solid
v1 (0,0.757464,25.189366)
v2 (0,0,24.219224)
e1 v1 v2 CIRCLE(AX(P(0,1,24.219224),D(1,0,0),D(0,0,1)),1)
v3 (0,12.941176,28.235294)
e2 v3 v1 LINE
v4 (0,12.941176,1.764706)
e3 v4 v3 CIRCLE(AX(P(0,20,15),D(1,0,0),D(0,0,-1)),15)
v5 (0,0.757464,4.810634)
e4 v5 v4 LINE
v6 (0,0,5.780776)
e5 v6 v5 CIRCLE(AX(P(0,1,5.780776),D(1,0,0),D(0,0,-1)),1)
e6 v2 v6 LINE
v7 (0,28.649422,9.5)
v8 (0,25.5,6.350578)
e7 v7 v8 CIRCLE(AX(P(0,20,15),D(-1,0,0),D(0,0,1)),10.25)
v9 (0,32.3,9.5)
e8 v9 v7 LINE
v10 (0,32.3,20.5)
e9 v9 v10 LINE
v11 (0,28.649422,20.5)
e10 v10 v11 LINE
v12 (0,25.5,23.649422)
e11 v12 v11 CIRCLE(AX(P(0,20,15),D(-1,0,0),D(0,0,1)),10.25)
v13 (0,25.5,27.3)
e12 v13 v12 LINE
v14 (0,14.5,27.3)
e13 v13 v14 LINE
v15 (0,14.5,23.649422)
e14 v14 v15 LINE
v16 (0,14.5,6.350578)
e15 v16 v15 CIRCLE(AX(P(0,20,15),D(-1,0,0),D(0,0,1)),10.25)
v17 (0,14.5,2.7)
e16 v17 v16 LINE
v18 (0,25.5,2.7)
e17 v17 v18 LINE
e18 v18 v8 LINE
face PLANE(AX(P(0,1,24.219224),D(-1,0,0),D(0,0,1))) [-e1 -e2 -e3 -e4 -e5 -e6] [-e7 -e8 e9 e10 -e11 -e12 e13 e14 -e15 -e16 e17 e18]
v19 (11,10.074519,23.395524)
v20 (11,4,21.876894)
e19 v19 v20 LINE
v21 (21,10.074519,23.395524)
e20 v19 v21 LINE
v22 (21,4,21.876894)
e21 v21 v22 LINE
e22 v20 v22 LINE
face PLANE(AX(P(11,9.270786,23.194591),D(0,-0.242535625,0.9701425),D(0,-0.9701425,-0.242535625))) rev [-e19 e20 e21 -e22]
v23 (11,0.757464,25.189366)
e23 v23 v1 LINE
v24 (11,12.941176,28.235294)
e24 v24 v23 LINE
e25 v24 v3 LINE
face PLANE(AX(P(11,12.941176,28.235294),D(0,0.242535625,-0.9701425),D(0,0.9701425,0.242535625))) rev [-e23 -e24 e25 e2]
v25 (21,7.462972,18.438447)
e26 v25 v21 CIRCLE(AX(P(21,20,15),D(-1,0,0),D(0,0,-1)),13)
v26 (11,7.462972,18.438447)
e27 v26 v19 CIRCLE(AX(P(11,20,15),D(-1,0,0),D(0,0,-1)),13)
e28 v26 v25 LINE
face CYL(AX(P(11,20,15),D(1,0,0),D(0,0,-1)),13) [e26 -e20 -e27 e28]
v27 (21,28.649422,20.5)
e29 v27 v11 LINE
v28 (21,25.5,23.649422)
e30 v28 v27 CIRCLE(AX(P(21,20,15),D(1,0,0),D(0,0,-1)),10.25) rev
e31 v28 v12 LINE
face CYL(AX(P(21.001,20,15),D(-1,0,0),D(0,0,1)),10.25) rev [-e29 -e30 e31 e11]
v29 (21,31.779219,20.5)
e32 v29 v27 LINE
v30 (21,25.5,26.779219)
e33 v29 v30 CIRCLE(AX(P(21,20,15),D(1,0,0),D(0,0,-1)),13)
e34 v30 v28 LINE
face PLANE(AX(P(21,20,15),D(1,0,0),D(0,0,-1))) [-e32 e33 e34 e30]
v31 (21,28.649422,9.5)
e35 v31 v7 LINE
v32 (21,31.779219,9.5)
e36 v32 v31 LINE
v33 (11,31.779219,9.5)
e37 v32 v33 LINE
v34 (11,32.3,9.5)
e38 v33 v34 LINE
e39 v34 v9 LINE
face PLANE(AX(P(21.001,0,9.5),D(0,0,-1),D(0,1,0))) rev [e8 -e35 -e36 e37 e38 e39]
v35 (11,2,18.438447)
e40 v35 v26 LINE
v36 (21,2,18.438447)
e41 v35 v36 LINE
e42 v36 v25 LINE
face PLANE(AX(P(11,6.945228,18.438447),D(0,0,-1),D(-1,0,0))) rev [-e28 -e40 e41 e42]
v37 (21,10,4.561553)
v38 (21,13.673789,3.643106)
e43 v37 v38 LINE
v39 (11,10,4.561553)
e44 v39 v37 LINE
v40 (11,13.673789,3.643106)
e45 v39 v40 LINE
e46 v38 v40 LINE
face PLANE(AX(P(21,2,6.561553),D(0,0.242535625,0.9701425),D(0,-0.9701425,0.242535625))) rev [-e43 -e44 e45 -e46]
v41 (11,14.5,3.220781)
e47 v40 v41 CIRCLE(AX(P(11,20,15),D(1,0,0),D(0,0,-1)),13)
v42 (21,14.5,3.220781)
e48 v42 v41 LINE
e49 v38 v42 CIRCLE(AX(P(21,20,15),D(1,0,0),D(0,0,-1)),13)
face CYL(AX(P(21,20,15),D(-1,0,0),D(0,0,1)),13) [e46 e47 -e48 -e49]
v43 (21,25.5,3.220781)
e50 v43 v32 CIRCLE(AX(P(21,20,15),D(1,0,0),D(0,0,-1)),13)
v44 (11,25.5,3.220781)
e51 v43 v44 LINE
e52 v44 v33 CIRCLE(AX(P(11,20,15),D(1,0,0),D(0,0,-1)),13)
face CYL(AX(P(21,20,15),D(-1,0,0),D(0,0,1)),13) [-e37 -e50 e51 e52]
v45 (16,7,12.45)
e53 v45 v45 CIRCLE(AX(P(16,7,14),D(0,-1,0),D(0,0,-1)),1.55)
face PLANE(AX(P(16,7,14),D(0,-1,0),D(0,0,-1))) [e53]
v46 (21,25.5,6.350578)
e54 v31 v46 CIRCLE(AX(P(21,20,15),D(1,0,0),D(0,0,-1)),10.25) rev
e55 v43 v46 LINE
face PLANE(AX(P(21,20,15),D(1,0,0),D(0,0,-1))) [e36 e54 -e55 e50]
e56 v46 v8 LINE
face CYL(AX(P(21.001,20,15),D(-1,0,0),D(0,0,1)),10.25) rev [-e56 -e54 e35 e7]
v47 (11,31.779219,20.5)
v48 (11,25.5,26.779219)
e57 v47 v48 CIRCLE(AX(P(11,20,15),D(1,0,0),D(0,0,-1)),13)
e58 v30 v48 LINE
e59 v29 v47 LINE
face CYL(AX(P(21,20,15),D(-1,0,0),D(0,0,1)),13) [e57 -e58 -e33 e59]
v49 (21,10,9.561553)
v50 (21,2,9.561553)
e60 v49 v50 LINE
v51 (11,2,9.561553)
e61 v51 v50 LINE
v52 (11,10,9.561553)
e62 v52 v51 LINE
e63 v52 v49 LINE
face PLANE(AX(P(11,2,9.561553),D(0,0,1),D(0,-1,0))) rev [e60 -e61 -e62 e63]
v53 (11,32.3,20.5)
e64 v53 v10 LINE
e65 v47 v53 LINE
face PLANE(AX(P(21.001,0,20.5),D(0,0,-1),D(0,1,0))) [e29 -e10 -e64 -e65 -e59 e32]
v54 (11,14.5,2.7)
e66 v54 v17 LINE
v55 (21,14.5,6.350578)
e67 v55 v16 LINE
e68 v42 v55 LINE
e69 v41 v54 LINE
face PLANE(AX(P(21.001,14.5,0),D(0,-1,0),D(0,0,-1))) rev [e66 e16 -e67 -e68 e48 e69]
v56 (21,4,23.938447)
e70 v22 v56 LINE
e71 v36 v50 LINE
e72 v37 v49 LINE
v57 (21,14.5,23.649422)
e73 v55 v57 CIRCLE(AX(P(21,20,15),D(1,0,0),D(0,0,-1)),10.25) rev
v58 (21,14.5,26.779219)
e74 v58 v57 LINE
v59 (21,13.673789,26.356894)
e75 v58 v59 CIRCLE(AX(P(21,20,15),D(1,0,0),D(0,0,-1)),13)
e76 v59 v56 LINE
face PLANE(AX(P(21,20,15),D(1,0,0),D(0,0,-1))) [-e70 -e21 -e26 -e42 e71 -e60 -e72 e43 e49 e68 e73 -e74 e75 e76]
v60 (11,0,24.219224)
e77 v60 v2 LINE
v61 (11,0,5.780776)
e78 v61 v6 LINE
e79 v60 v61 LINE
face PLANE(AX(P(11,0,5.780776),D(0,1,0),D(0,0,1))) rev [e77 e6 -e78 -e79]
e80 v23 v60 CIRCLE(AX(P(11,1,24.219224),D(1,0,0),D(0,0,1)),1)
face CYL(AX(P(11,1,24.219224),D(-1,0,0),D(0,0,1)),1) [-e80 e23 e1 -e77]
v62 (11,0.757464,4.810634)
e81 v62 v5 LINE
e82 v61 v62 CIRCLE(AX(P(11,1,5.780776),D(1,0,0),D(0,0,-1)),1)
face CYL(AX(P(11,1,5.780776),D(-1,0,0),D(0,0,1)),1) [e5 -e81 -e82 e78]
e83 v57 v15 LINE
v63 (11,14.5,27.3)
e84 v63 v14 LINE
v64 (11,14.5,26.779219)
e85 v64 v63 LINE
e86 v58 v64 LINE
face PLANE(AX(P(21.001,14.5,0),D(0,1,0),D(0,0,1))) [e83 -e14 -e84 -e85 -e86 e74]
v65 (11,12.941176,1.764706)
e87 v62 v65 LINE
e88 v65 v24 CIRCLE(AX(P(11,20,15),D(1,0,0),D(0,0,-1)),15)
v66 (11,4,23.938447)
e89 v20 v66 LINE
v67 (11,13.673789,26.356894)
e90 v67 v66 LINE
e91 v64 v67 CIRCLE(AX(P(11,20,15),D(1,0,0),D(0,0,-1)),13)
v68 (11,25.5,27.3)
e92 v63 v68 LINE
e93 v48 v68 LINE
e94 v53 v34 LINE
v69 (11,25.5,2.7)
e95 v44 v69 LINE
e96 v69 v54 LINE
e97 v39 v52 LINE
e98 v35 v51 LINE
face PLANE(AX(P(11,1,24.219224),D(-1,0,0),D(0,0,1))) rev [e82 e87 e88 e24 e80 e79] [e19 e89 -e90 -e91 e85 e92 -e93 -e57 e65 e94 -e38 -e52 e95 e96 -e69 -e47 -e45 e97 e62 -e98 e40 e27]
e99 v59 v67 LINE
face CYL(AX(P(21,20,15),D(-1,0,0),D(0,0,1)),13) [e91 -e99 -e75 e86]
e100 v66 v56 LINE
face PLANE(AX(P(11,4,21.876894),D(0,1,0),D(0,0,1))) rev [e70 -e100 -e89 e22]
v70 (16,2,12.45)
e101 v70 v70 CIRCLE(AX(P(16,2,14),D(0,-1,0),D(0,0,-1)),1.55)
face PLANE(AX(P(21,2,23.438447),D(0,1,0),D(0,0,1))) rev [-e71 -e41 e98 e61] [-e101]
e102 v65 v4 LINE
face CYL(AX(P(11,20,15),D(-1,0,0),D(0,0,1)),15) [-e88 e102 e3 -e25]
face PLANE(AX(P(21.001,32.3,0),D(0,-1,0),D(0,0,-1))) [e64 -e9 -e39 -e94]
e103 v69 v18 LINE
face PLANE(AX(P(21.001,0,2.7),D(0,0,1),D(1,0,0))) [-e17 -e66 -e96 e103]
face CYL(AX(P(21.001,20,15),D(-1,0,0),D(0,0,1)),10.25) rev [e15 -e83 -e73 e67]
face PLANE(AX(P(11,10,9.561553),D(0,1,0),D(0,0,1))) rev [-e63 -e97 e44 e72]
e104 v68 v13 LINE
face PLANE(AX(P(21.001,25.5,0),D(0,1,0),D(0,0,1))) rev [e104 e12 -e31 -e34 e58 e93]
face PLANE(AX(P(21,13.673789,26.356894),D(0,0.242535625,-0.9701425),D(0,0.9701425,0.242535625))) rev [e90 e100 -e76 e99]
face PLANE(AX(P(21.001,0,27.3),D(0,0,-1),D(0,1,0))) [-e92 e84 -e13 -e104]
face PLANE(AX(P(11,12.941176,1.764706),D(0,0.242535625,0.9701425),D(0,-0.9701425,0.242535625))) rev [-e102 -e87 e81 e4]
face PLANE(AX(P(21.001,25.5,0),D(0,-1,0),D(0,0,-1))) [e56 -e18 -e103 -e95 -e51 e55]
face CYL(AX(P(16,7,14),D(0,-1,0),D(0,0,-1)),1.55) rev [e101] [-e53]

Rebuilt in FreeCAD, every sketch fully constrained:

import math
import FreeCAD as App
import Part
import Sketcher
Q = App.Units.Quantity


def add_polygon(sketch, points):
    """Adds a closed chain of lines whose ends are joined by coincident constraints."""
    first, n = sketch.GeometryCount, len(points)
    for a, b in zip(points, points[1:] + points[:1]):
        sketch.addGeometry(Part.LineSegment(App.Vector(*a, 0), App.Vector(*b, 0)), False)
    for i in range(n):
        sketch.addConstraint(Sketcher.Constraint("Coincident", first + i, 2, first + (i + 1) % n, 1))

doc = App.newDocument("Part")
body = doc.addObject("PartDesign::Body", "Body")

sketch1 = body.newObject("Sketcher::SketchObject", "Sketch")
sketch1.AttachmentSupport = (doc.getObject("YZ_Plane"), [""])
sketch1.MapMode = "FlatFace"
sketch1.addGeometry(Part.LineSegment(App.Vector(0, 24.2, 0), App.Vector(0, 5.8, 0)), False)
sketch1.addGeometry(Part.ArcOfCircle(Part.Circle(App.Vector(1, 5.8, 0), App.Vector(0, 0, 1), 1), math.radians(-180), math.radians(-104)), False)
sketch1.addGeometry(Part.LineSegment(App.Vector(0.8, 4.8, 0), App.Vector(12.9, 1.8, 0)), False)
sketch1.addGeometry(Part.ArcOfCircle(Part.Circle(App.Vector(20, 15, 0), App.Vector(0, 0, 1), 15), math.radians(-118), math.radians(118)), False)
sketch1.addGeometry(Part.LineSegment(App.Vector(12.9, 28.2, 0), App.Vector(0.8, 25.2, 0)), False)
sketch1.addGeometry(Part.ArcOfCircle(Part.Circle(App.Vector(1, 24.2, 0), App.Vector(0, 0, 1), 1), math.radians(104), math.radians(180)), False)
sketch1.addGeometry(Part.Circle(App.Vector(20, 15, 0), App.Vector(0, 0, 1), 10), False)
sketch1.addConstraint(Sketcher.Constraint("Tangent", 0, 2, 1, 1))
sketch1.addConstraint(Sketcher.Constraint("Tangent", 1, 2, 2, 1))
sketch1.addConstraint(Sketcher.Constraint("Coincident", 2, 2, 3, 1))
sketch1.addConstraint(Sketcher.Constraint("Coincident", 3, 2, 4, 1))
sketch1.addConstraint(Sketcher.Constraint("Tangent", 4, 2, 5, 1))
sketch1.addConstraint(Sketcher.Constraint("Tangent", 5, 2, 0, 1))
sketch1.addConstraint(Sketcher.Constraint("Vertical", 0))
sketch1.addConstraint(Sketcher.Constraint("Coincident", 6, 3, 3, 3))
sketch1.addConstraint(Sketcher.Constraint("Equal", 1, 5))
sketch1.addConstraint(Sketcher.Constraint("PointOnObject", 0, 2, -2))
sketch1.addConstraint(Sketcher.Constraint("Vertical", 2, 2, 3, 2))
sketch1.addConstraint(Sketcher.Constraint("Vertical", 1, 2, 4, 2))
sketch1.addConstraint(Sketcher.Constraint("Diameter", 6, Q("20 mm")))
sketch1.addConstraint(Sketcher.Constraint("Radius", 1, Q("1 mm")))
sketch1.addConstraint(Sketcher.Constraint("Radius", 3, Q("15 mm")))
sketch1.addConstraint(Sketcher.Constraint("DistanceX", -1, 1, 3, 3, Q("20 mm")))
sketch1.addConstraint(Sketcher.Constraint("DistanceY", -1, 1, 3, 3, Q("15 mm")))
sketch1.addConstraint(Sketcher.Constraint("DistanceY", 0, 2, 0, 1, Q("18.438447 mm")))
sketch1.addConstraint(Sketcher.Constraint("DistanceY", 2, 2, 1, 2, Q("3.045928 mm")))
pad1 = body.newObject("PartDesign::Pad", "Pad")
pad1.Profile = sketch1
pad1.Length = 11

sketch2 = body.newObject("Sketcher::SketchObject", "Sketch001")
sketch2.AttachmentSupport = (doc.getObject("YZ_Plane"), [""])
sketch2.MapMode = "FlatFace"
sketch2.AttachmentOffset = App.Placement(App.Vector(0, 0, 11), App.Rotation())
sketch2.addGeometry(Part.LineSegment(App.Vector(2, 23, 0), App.Vector(2, 7, 0)), False)
sketch2.addGeometry(Part.LineSegment(App.Vector(2, 7, 0), App.Vector(14, 4, 0)), False)
sketch2.addGeometry(Part.ArcOfCircle(Part.Circle(App.Vector(20, 15, 0), App.Vector(0, 0, 1), 13), math.radians(-119), math.radians(119)), False)
sketch2.addGeometry(Part.LineSegment(App.Vector(14, 26, 0), App.Vector(2, 23, 0)), False)
sketch2.addGeometry(Part.Circle(App.Vector(20, 15, 0), App.Vector(0, 0, 1), 10), False)
sketch2.addConstraint(Sketcher.Constraint("Coincident", 0, 2, 1, 1))
sketch2.addConstraint(Sketcher.Constraint("Coincident", 1, 2, 2, 1))
sketch2.addConstraint(Sketcher.Constraint("Coincident", 2, 2, 3, 1))
sketch2.addConstraint(Sketcher.Constraint("Coincident", 3, 2, 0, 1))
sketch2.addConstraint(Sketcher.Constraint("Vertical", 0))
sketch2.addConstraint(Sketcher.Constraint("Coincident", 4, 3, 2, 3))
sketch2.addConstraint(Sketcher.Constraint("Vertical", 1, 2, 2, 2))
sketch2.addConstraint(Sketcher.Constraint("Equal", 1, 3))
sketch2.addConstraint(Sketcher.Constraint("Diameter", 4, Q("20 mm")))
sketch2.addConstraint(Sketcher.Constraint("Radius", 2, Q("13 mm")))
sketch2.addConstraint(Sketcher.Constraint("DistanceX", -1, 1, 2, 3, Q("20 mm")))
sketch2.addConstraint(Sketcher.Constraint("DistanceY", -1, 1, 2, 3, Q("15 mm")))
sketch2.addConstraint(Sketcher.Constraint("DistanceX", -1, 1, 0, 2, Q("2 mm")))
sketch2.addConstraint(Sketcher.Constraint("DistanceY", 0, 2, 0, 1, Q("16.876894 mm")))
sketch2.addConstraint(Sketcher.Constraint("DistanceX", -1, 1, 1, 2, Q("13.673789 mm")))
pad2 = body.newObject("PartDesign::Pad", "Pad001")
pad2.Profile = sketch2
pad2.Length = 10

sketch3 = body.newObject("Sketcher::SketchObject", "Sketch002")
sketch3.AttachmentSupport = (doc.getObject("YZ_Plane"), [""])
sketch3.MapMode = "FlatFace"
sketch3.AttachmentOffset = App.Placement(App.Vector(0, 0, 11), App.Rotation())
add_polygon(sketch3, [(10, 9.6), (2, 9.6), (2, 6.6), (10, 4.6)])
sketch3.addGeometry(Part.LineSegment(App.Vector(2, 23.4, 0), App.Vector(2, 18.4, 0)), False)
sketch3.addGeometry(Part.LineSegment(App.Vector(2, 18.4, 0), App.Vector(7.5, 18.4, 0)), False)
sketch3.addGeometry(Part.ArcOfCircle(Part.Circle(App.Vector(20, 15, 0), App.Vector(0, 0, 1), 13), math.radians(140), math.radians(165)), False)
sketch3.addGeometry(Part.LineSegment(App.Vector(10.1, 23.4, 0), App.Vector(9.3, 23.2, 0)), False)
sketch3.addGeometry(Part.LineSegment(App.Vector(9.3, 23.2, 0), App.Vector(4, 21.9, 0)), False)
sketch3.addGeometry(Part.LineSegment(App.Vector(4, 21.9, 0), App.Vector(4, 23.9, 0)), False)
sketch3.addGeometry(Part.LineSegment(App.Vector(4, 23.9, 0), App.Vector(2, 23.4, 0)), False)
sketch3.addConstraint(Sketcher.Constraint("Coincident", 4, 2, 5, 1))
sketch3.addConstraint(Sketcher.Constraint("Coincident", 5, 2, 6, 2))
sketch3.addConstraint(Sketcher.Constraint("Coincident", 6, 1, 7, 1))
sketch3.addConstraint(Sketcher.Constraint("Coincident", 7, 2, 8, 1))
sketch3.addConstraint(Sketcher.Constraint("Coincident", 8, 2, 9, 1))
sketch3.addConstraint(Sketcher.Constraint("Coincident", 9, 2, 10, 1))
sketch3.addConstraint(Sketcher.Constraint("Coincident", 10, 2, 4, 1))
sketch3.addConstraint(Sketcher.Constraint("Horizontal", 0))
sketch3.addConstraint(Sketcher.Constraint("Vertical", 1))
sketch3.addConstraint(Sketcher.Constraint("Vertical", 3))
sketch3.addConstraint(Sketcher.Constraint("Vertical", 4))
sketch3.addConstraint(Sketcher.Constraint("Horizontal", 5))
sketch3.addConstraint(Sketcher.Constraint("Vertical", 9))
sketch3.addConstraint(Sketcher.Constraint("Parallel", 7, 8))
sketch3.addConstraint(Sketcher.Constraint("Parallel", 8, 10))
sketch3.addConstraint(Sketcher.Constraint("Vertical", 1, 2, 4, 2))
sketch3.addConstraint(Sketcher.Constraint("Equal", 3, 4))
sketch3.addConstraint(Sketcher.Constraint("Radius", 6, Q("13 mm")))
sketch3.addConstraint(Sketcher.Constraint("DistanceX", 0, 2, 0, 1, Q("8 mm")))
sketch3.addConstraint(Sketcher.Constraint("DistanceY", 1, 2, 1, 1, Q("3 mm")))
sketch3.addConstraint(Sketcher.Constraint("DistanceY", 3, 1, 3, 2, Q("5 mm")))
sketch3.addConstraint(Sketcher.Constraint("DistanceX", -1, 1, 6, 3, Q("20 mm")))
sketch3.addConstraint(Sketcher.Constraint("DistanceY", -1, 1, 6, 3, Q("15 mm")))
sketch3.addConstraint(Sketcher.Constraint("DistanceX", -1, 1, 0, 2, Q("2 mm")))
sketch3.addConstraint(Sketcher.Constraint("DistanceX", -1, 1, 8, 2, Q("4 mm")))
sketch3.addConstraint(Sketcher.Constraint("DistanceY", 4, 2, 9, 2, Q("5.5 mm")))
sketch3.addConstraint(Sketcher.Constraint("DistanceX", 5, 1, 5, 2, Q("5.462972 mm")))
sketch3.addConstraint(Sketcher.Constraint("Distance", 7, Q("0.828469 mm")))
sketch3.addConstraint(Sketcher.Constraint("DistanceY", 9, 1, 9, 2, Q("2.061553 mm")))
sketch3.addConstraint(Sketcher.Constraint("DistanceY", 3, 2, 6, 1, Q("13.833971 mm")))
pocket1 = body.newObject("PartDesign::Pocket", "Pocket")
pocket1.Profile = sketch3
pocket1.Length = 10
pocket1.Reversed = True

sketch4 = body.newObject("Sketcher::SketchObject", "Sketch003")
sketch4.AttachmentSupport = (doc.getObject("XZ_Plane"), [""])
sketch4.MapMode = "FlatFace"
sketch4.AttachmentOffset = App.Placement(App.Vector(0, 0, -2), App.Rotation())
sketch4.addGeometry(Part.Circle(App.Vector(16, 14, 0), App.Vector(0, 0, 1), 1.6), False)
sketch4.addConstraint(Sketcher.Constraint("Diameter", 0, Q("3.1 mm")))
sketch4.addConstraint(Sketcher.Constraint("DistanceX", -1, 1, 0, 3, Q("16 mm")))
sketch4.addConstraint(Sketcher.Constraint("DistanceY", -1, 1, 0, 3, Q("14 mm")))
pocket2 = body.newObject("PartDesign::Pocket", "Pocket001")
pocket2.Profile = sketch4
pocket2.Length = 5

sketch5 = body.newObject("Sketcher::SketchObject", "Sketch004")
sketch5.AttachmentSupport = (doc.getObject("YZ_Plane"), [""])
sketch5.MapMode = "FlatFace"
sketch5.addGeometry(Part.LineSegment(App.Vector(28.6, 20.5, 0), App.Vector(32.3, 20.5, 0)), False)
sketch5.addGeometry(Part.LineSegment(App.Vector(32.3, 20.5, 0), App.Vector(32.3, 9.5, 0)), False)
sketch5.addGeometry(Part.LineSegment(App.Vector(32.3, 9.5, 0), App.Vector(28.6, 9.5, 0)), False)
sketch5.addGeometry(Part.ArcOfCircle(Part.Circle(App.Vector(20, 15, 0), App.Vector(0, 0, 1), 10.3), math.radians(-58), math.radians(-32)), False)
sketch5.addGeometry(Part.LineSegment(App.Vector(25.5, 6.4, 0), App.Vector(25.5, 2.7, 0)), False)
sketch5.addGeometry(Part.LineSegment(App.Vector(25.5, 2.7, 0), App.Vector(14.5, 2.7, 0)), False)
sketch5.addGeometry(Part.LineSegment(App.Vector(14.5, 2.7, 0), App.Vector(14.5, 6.4, 0)), False)
sketch5.addGeometry(Part.ArcOfCircle(Part.Circle(App.Vector(20, 15, 0), App.Vector(0, 0, 1), 10.2), math.radians(122), math.radians(238)), False)
sketch5.addGeometry(Part.LineSegment(App.Vector(14.5, 23.6, 0), App.Vector(14.5, 27.3, 0)), False)
sketch5.addGeometry(Part.LineSegment(App.Vector(14.5, 27.3, 0), App.Vector(25.5, 27.3, 0)), False)
sketch5.addGeometry(Part.LineSegment(App.Vector(25.5, 27.3, 0), App.Vector(25.5, 23.6, 0)), False)
sketch5.addGeometry(Part.ArcOfCircle(Part.Circle(App.Vector(20, 15, 0), App.Vector(0, 0, 1), 10.3), math.radians(32), math.radians(58)), False)
sketch5.addConstraint(Sketcher.Constraint("Coincident", 0, 2, 1, 1))
sketch5.addConstraint(Sketcher.Constraint("Coincident", 1, 2, 2, 1))
sketch5.addConstraint(Sketcher.Constraint("Coincident", 2, 2, 3, 2))
sketch5.addConstraint(Sketcher.Constraint("Coincident", 3, 1, 4, 1))
sketch5.addConstraint(Sketcher.Constraint("Coincident", 4, 2, 5, 1))
sketch5.addConstraint(Sketcher.Constraint("Coincident", 5, 2, 6, 1))
sketch5.addConstraint(Sketcher.Constraint("Coincident", 6, 2, 7, 2))
sketch5.addConstraint(Sketcher.Constraint("Coincident", 7, 1, 8, 1))
sketch5.addConstraint(Sketcher.Constraint("Coincident", 8, 2, 9, 1))
sketch5.addConstraint(Sketcher.Constraint("Coincident", 9, 2, 10, 1))
sketch5.addConstraint(Sketcher.Constraint("Coincident", 10, 2, 11, 2))
sketch5.addConstraint(Sketcher.Constraint("Coincident", 11, 1, 0, 1))
sketch5.addConstraint(Sketcher.Constraint("Horizontal", 0))
sketch5.addConstraint(Sketcher.Constraint("Vertical", 1))
sketch5.addConstraint(Sketcher.Constraint("Horizontal", 2))
sketch5.addConstraint(Sketcher.Constraint("Vertical", 4))
sketch5.addConstraint(Sketcher.Constraint("Horizontal", 5))
sketch5.addConstraint(Sketcher.Constraint("Vertical", 6))
sketch5.addConstraint(Sketcher.Constraint("Vertical", 8))
sketch5.addConstraint(Sketcher.Constraint("Horizontal", 9))
sketch5.addConstraint(Sketcher.Constraint("Vertical", 10))
sketch5.addConstraint(Sketcher.Constraint("Coincident", 7, 3, 3, 3))
sketch5.addConstraint(Sketcher.Constraint("Coincident", 11, 3, 3, 3))
sketch5.addConstraint(Sketcher.Constraint("Equal", 3, 7))
sketch5.addConstraint(Sketcher.Constraint("Equal", 7, 11))
sketch5.addConstraint(Sketcher.Constraint("Horizontal", 3, 1, 6, 2))
sketch5.addConstraint(Sketcher.Constraint("Horizontal", 7, 1, 10, 2))
sketch5.addConstraint(Sketcher.Constraint("Vertical", 6, 2, 7, 1))
sketch5.addConstraint(Sketcher.Constraint("Vertical", 2, 2, 11, 1))
sketch5.addConstraint(Sketcher.Constraint("Equal", 9, 1))
sketch5.addConstraint(Sketcher.Constraint("Equal", 2, 4))
sketch5.addConstraint(Sketcher.Constraint("Equal", 6, 8))
sketch5.addConstraint(Sketcher.Constraint("DistanceX", 5, 2, 5, 1, Q("11 mm")))
sketch5.addConstraint(Sketcher.Constraint("Radius", 3, Q("10.25 mm")))
sketch5.addConstraint(Sketcher.Constraint("DistanceX", -1, 1, 3, 3, Q("20 mm")))
sketch5.addConstraint(Sketcher.Constraint("DistanceY", -1, 1, 3, 3, Q("15 mm")))
sketch5.addConstraint(Sketcher.Constraint("DistanceX", -1, 1, 0, 2, Q("32.3 mm")))
pocket3 = body.newObject("PartDesign::Pocket", "Pocket002")
pocket3.Profile = sketch5
pocket3.Length = 21
pocket3.Reversed = True

sketch6 = body.newObject("Sketcher::SketchObject", "Sketch005")
sketch6.AttachmentSupport = (doc.getObject("YZ_Plane"), [""])
sketch6.MapMode = "FlatFace"
sketch6.AttachmentOffset = App.Placement(App.Vector(0, 0, 11), App.Rotation())
sketch6.addGeometry(Part.LineSegment(App.Vector(32, 19, 0), App.Vector(32, 11, 0)), False)
sketch6.addGeometry(Part.ArcOfCircle(Part.Circle(App.Vector(20, 15, 0), App.Vector(0, 0, 1), 13), math.radians(-19), math.radians(19)), False)
sketch6.addGeometry(Part.LineSegment(App.Vector(16, 27, 0), App.Vector(24, 27, 0)), False)
sketch6.addGeometry(Part.ArcOfCircle(Part.Circle(App.Vector(20, 15, 0), App.Vector(0, 0, 1), 13), math.radians(71), math.radians(109)), False)
sketch6.addGeometry(Part.LineSegment(App.Vector(24, 3, 0), App.Vector(16, 3, 0)), False)
sketch6.addGeometry(Part.ArcOfCircle(Part.Circle(App.Vector(20, 15, 0), App.Vector(0, 0, 1), 13), math.radians(-109), math.radians(-71)), False)
sketch6.addConstraint(Sketcher.Constraint("Coincident", 0, 1, 1, 2))
sketch6.addConstraint(Sketcher.Constraint("Coincident", 1, 1, 0, 2))
sketch6.addConstraint(Sketcher.Constraint("Coincident", 2, 1, 3, 2))
sketch6.addConstraint(Sketcher.Constraint("Coincident", 3, 1, 2, 2))
sketch6.addConstraint(Sketcher.Constraint("Coincident", 4, 1, 5, 2))
sketch6.addConstraint(Sketcher.Constraint("Coincident", 5, 1, 4, 2))
sketch6.addConstraint(Sketcher.Constraint("Vertical", 0))
sketch6.addConstraint(Sketcher.Constraint("Horizontal", 2))
sketch6.addConstraint(Sketcher.Constraint("Horizontal", 4))
sketch6.addConstraint(Sketcher.Constraint("Coincident", 3, 3, 1, 3))
sketch6.addConstraint(Sketcher.Constraint("Coincident", 5, 3, 1, 3))
sketch6.addConstraint(Sketcher.Constraint("Equal", 1, 3))
sketch6.addConstraint(Sketcher.Constraint("Equal", 3, 5))
sketch6.addConstraint(Sketcher.Constraint("Vertical", 3, 1, 4, 1))
sketch6.addConstraint(Sketcher.Constraint("Equal", 4, 0))
sketch6.addConstraint(Sketcher.Constraint("Radius", 1, Q("13 mm")))
sketch6.addConstraint(Sketcher.Constraint("DistanceX", -1, 1, 1, 3, Q("20 mm")))
sketch6.addConstraint(Sketcher.Constraint("DistanceY", -1, 1, 1, 3, Q("15 mm")))
sketch6.addConstraint(Sketcher.Constraint("DistanceX", -1, 1, 0, 1, Q("32.3 mm")))
pocket4 = body.newObject("PartDesign::Pocket", "Pocket003")
pocket4.Profile = sketch6
pocket4.Length = 10
pocket4.Reversed = True

doc.recompute()
